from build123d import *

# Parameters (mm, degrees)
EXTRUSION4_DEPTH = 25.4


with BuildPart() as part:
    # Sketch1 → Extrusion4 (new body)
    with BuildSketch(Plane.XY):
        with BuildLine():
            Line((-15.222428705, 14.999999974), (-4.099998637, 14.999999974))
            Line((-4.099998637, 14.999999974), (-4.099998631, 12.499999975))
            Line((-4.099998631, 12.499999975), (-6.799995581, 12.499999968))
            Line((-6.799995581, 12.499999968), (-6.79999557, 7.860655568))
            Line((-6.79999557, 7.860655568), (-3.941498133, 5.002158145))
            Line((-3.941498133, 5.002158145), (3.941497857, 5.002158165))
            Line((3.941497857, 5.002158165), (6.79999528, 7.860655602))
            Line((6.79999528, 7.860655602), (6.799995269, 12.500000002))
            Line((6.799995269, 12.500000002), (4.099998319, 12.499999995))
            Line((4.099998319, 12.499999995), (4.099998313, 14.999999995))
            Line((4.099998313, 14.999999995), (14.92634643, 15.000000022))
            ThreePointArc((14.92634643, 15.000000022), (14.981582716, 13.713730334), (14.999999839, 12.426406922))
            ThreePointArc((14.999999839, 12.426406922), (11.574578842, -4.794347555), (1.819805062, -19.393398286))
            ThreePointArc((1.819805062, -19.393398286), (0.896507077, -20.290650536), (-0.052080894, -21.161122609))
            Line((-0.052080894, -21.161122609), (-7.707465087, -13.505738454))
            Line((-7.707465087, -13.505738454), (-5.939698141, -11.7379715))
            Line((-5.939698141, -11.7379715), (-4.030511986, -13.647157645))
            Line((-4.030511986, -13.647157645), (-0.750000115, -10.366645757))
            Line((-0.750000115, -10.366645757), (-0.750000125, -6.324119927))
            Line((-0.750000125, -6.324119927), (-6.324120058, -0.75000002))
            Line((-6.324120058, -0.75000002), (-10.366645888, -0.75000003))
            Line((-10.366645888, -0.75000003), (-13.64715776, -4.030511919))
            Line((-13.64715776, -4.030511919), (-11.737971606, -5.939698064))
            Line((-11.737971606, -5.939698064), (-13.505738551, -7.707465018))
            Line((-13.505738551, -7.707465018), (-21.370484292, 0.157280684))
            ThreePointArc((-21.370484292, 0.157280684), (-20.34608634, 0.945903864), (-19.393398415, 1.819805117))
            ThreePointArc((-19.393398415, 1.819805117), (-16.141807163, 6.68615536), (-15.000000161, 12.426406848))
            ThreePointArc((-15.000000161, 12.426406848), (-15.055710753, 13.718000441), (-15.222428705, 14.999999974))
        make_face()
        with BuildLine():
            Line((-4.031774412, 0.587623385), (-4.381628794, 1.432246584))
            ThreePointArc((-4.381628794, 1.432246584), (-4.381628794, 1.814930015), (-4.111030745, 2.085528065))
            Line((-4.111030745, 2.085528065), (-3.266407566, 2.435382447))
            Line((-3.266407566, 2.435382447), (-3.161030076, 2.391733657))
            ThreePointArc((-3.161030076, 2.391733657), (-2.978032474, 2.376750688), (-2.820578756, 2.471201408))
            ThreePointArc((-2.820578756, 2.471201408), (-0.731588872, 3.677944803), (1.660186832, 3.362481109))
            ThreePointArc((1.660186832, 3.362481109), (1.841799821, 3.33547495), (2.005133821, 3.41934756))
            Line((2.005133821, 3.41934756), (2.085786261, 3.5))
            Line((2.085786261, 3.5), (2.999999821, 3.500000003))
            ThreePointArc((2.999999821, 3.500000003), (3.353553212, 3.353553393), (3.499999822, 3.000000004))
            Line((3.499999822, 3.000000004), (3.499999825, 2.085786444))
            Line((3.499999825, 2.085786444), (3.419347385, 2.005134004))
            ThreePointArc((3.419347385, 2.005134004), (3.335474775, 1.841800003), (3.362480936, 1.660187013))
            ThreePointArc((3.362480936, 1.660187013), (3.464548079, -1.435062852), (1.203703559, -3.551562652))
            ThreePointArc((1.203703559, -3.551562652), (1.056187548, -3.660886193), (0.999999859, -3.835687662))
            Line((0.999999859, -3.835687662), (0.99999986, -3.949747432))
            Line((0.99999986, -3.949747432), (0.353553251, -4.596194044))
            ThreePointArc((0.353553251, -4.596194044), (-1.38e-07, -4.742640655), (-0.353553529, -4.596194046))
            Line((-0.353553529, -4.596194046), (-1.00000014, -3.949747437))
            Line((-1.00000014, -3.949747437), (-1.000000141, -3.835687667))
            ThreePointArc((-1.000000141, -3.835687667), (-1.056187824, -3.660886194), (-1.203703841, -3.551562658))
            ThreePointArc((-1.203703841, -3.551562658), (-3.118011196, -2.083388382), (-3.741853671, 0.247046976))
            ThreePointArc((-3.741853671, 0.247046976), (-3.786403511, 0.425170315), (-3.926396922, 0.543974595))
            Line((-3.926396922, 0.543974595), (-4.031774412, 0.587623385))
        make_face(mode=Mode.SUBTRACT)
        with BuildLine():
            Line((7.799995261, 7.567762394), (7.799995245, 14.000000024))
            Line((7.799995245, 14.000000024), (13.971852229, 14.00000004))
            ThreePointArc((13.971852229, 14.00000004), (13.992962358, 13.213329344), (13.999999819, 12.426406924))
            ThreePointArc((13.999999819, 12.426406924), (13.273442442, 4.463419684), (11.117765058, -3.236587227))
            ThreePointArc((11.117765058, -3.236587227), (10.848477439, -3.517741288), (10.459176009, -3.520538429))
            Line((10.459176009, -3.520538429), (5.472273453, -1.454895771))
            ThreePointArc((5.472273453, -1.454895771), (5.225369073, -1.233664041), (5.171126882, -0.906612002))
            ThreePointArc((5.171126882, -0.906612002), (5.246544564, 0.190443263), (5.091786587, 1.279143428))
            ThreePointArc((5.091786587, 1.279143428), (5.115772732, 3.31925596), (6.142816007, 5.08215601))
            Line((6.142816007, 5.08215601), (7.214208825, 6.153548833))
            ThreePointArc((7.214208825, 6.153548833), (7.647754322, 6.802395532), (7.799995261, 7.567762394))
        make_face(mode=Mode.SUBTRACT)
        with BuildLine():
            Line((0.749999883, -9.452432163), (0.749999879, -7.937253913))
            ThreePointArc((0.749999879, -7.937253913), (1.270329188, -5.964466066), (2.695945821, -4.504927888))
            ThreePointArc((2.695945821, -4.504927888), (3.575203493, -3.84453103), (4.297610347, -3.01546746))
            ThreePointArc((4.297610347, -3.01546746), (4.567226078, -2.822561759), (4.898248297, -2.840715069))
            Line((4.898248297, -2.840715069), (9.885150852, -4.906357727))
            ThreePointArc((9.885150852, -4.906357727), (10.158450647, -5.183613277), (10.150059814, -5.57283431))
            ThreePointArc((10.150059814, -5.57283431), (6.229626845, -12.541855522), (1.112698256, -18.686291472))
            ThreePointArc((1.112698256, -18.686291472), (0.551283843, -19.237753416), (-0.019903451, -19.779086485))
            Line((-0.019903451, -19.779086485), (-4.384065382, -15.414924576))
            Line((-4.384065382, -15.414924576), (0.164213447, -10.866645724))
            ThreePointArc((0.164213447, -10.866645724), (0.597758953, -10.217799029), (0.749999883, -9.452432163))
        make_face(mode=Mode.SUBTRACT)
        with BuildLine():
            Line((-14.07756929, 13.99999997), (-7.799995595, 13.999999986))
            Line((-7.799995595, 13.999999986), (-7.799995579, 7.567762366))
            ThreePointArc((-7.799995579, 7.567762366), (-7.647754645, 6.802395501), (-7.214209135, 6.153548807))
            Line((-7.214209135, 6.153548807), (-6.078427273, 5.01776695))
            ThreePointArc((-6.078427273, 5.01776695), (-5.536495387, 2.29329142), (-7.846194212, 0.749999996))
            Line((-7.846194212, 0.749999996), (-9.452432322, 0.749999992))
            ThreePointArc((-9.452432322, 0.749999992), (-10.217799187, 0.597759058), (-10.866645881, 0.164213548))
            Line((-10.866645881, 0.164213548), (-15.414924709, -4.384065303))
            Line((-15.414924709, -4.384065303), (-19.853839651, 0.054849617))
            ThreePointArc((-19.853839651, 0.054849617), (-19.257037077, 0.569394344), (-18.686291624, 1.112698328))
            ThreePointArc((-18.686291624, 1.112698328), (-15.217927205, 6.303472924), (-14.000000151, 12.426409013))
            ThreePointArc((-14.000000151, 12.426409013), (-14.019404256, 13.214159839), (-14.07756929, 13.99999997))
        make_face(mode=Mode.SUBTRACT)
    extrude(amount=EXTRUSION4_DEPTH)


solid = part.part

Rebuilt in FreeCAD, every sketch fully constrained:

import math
import FreeCAD as App
import Part
import Sketcher
from FreeCAD import Vector
Q = App.Units.Quantity

doc = App.newDocument("Part")
params = doc.addObject("Spreadsheet::Sheet", "Params")
for row, (alias, value) in enumerate([
    ("sketch1_radius", "14.999999 mm"),
    ("sketch1_radius2", "44.999999 mm"),
    ("sketch1_radius3", "4 mm"),
    ("sketch1_radius4", "44 mm"),
    ("sketch1_radius5", "2 mm"),
    ("pad1_length", "25.4 mm"),
], start=1):
    params.set(f"A{row}", alias)
    params.set(f"B{row}", "=" + value)
    params.setAlias(f"B{row}", alias)

body = doc.addObject("PartDesign::Body", "Body")

sketch1 = body.newObject("Sketcher::SketchObject", "Sketch")
sketch1.AttachmentSupport = (doc.getObject("XY_Plane"), [""])
sketch1.MapMode = "FlatFace"
sketch1.addGeometry([
    Part.LineSegment(Vector(-4.099999, 15, 0), Vector(-15.222429, 15, 0)),
    Part.ArcOfCircle(Part.Circle(Vector(-30, 12.426407, 0), Vector(0, 0, 1), 14.999999), math.radians(0), math.radians(9.879282)),
    Part.ArcOfCircle(Part.Circle(Vector(-30, 12.426407, 0), Vector(0, 0, 1), 15), math.radians(-45), math.radians(0)),
    Part.ArcOfCircle(Part.Circle(Vector(-30.000001, 12.426407, 0), Vector(0, 0, 1), 15.000001), math.radians(-54.879282), math.radians(-45)),
    Part.LineSegment(Vector(-21.370484, 0.157281, 0), Vector(-13.505739, -7.707465, 0)),
    Part.LineSegment(Vector(-13.505739, -7.707465, 0), Vector(-11.737972, -5.939698, 0)),
    Part.LineSegment(Vector(-11.737972, -5.939698, 0), Vector(-13.647158, -4.030512, 0)),
    Part.LineSegment(Vector(-13.647158, -4.030512, 0), Vector(-10.366646, -0.75, 0)),
    Part.LineSegment(Vector(-10.366646, -0.75, 0), Vector(-6.32412, -0.75, 0)),
    Part.LineSegment(Vector(-6.32412, -0.75, 0), Vector(-0.75, -6.32412, 0)),
    Part.LineSegment(Vector(-0.75, -6.32412, 0), Vector(-0.75, -10.366646, 0)),
    Part.LineSegment(Vector(-0.75, -10.366646, 0), Vector(-4.030512, -13.647158, 0)),
    Part.LineSegment(Vector(-4.030512, -13.647158, 0), Vector(-5.939698, -11.737972, 0)),
    Part.LineSegment(Vector(-5.939698, -11.737972, 0), Vector(-7.707465, -13.505738, 0)),
    Part.LineSegment(Vector(-7.707465, -13.505738, 0), Vector(-0.052081, -21.161123, 0)),
    Part.ArcOfCircle(Part.Circle(Vector(-29.999999, 12.426406, 0), Vector(0, 0, 1), 44.999999), math.radians(-48.278589), math.radians(-45)),
    Part.ArcOfCircle(Part.Circle(Vector(-30, 12.426407, 0), Vector(0, 0, 1), 45), math.radians(-45), math.radians(0)),
    Part.ArcOfCircle(Part.Circle(Vector(-30.000001, 12.426407, 0), Vector(0, 0, 1), 45.000001), math.radians(0), math.radians(3.27859)),
    Part.LineSegment(Vector(14.926346, 15, 0), Vector(4.099998, 15, 0)),
    Part.LineSegment(Vector(4.099998, 15, 0), Vector(4.099998, 12.5, 0)),
    Part.LineSegment(Vector(4.099998, 12.5, 0), Vector(6.799995, 12.5, 0)),
    Part.LineSegment(Vector(6.799995, 12.5, 0), Vector(6.799995, 7.860656, 0)),
    Part.LineSegment(Vector(6.799995, 7.860656, 0), Vector(3.941498, 5.002158, 0)),
    Part.LineSegment(Vector(3.941498, 5.002158, 0), Vector(-3.941498, 5.002158, 0)),
    Part.LineSegment(Vector(-3.941498, 5.002158, 0), Vector(-6.799996, 7.860656, 0)),
    Part.LineSegment(Vector(-6.799996, 7.860656, 0), Vector(-6.799996, 12.5, 0)),
    Part.LineSegment(Vector(-6.799996, 12.5, 0), Vector(-4.099999, 12.5, 0)),
    Part.LineSegment(Vector(-4.099999, 12.5, 0), Vector(-4.099999, 15, 0)),
    Part.LineSegment(Vector(0.75, -9.452432, 0), Vector(0.75, -7.937254, 0)),
    Part.ArcOfCircle(Part.Circle(Vector(4.75, -7.937254, 0), Vector(0, 0, 1), 4), math.radians(120.898148), math.radians(180)),
    Part.ArcOfCircle(Part.Circle(Vector(0, 0, 0), Vector(0, 0, 1), 5.25), math.radians(-59.101851), math.radians(-35.055858)),
    Part.ArcOfCircle(Part.Circle(Vector(4.706907, -3.302655, 0), Vector(0, 0, 1), 0.5), math.radians(67.499998), math.radians(144.944145)),
    Part.LineSegment(Vector(4.898248, -2.840715, 0), Vector(9.885151, -4.906358, 0)),
    Part.ArcOfCircle(Part.Circle(Vector(9.693809, -5.368297, 0), Vector(0, 0, 1), 0.5), math.radians(-24.146656), math.radians(67.499999)),
    Part.ArcOfCircle(Part.Circle(Vector(-30, 12.426407, 0), Vector(0, 0, 1), 44), math.radians(-45), math.radians(-24.146657)),
    Part.ArcOfCircle(Part.Circle(Vector(-30.000002, 12.426409, 0), Vector(0, 0, 1), 44.000002), math.radians(-47.049533), math.radians(-45)),
    Part.LineSegment(Vector(-0.019903, -19.779086, 0), Vector(-4.384065, -15.414925, 0)),
    Part.LineSegment(Vector(-4.384065, -15.414925, 0), Vector(0.164213, -10.866646, 0)),
    Part.ArcOfCircle(Part.Circle(Vector(-1.25, -9.452432, 0), Vector(0, 0, 1), 2), math.radians(-45.000001), math.radians(0.000001)),
    Part.LineSegment(Vector(7.799995, 7.567762, 0), Vector(7.799995, 14, 0)),
    Part.LineSegment(Vector(7.799995, 14, 0), Vector(13.971852, 14, 0)),
    Part.ArcOfCircle(Part.Circle(Vector(-29.999999, 12.426407, 0), Vector(0, 0, 1), 43.999998), math.radians(0), math.radians(2.049534)),
    Part.ArcOfCircle(Part.Circle(Vector(-30, 12.426407, 0), Vector(0, 0, 1), 44), math.radians(-20.853343), math.radians(0)),
    Part.ArcOfCircle(Part.Circle(Vector(10.650518, -3.058599, 0), Vector(0, 0, 1), 0.5), math.radians(-112.5), math.radians(-20.853342)),
    Part.LineSegment(Vector(10.459176, -3.520538, 0), Vector(5.472273, -1.454896, 0)),
    Part.ArcOfCircle(Part.Circle(Vector(5.663615, -0.992956, 0), Vector(0, 0, 1), 0.5), math.radians(170.055858), math.radians(247.5)),
    Part.ArcOfCircle(Part.Circle(Vector(0, 0, 0), Vector(0, 0, 1), 5.25), math.radians(-9.944142), math.radians(14.101852)),
    Part.ArcOfCircle(Part.Circle(Vector(8.971243, 2.253729, 0), Vector(0, 0, 1), 4), math.radians(135), math.radians(194.101852)),
    Part.LineSegment(Vector(6.142816, 5.082156, 0), Vector(7.214209, 6.153549, 0)),
    Part.ArcOfCircle(Part.Circle(Vector(5.799995, 7.567762, 0), Vector(0, 0, 1), 2), math.radians(-44.999999), math.radians(-0.000001)),
    Part.LineSegment(Vector(-4.031774, 0.587623, 0), Vector(-4.381629, 1.432247, 0)),
    Part.ArcOfCircle(Part.Circle(Vector(-3.919689, 1.623588, 0), Vector(0, 0, 1), 0.5), math.radians(112.5), math.radians(202.5)),
    Part.LineSegment(Vector(-4.111031, 2.085528, 0), Vector(-3.266408, 2.435382, 0)),
    Part.LineSegment(Vector(-3.266408, 2.435382, 0), Vector(-3.16103, 2.391734, 0)),
    Part.ArcOfCircle(Part.Circle(Vector(-3.046225, 2.668898, 0), Vector(0, 0, 1), 0.3), math.radians(-112.499997), math.radians(-41.222667)),
    Part.ArcOfCircle(Part.Circle(Vector(0, 0, 0), Vector(0, 0, 1), 3.75), math.radians(63.722665), math.radians(138.777335)),
    Part.ArcOfCircle(Part.Circle(Vector(1.793002, 3.63148, 0), Vector(0, 0, 1), 0.3), math.radians(-116.277334), math.radians(-45.000002)),
    Part.LineSegment(Vector(2.005134, 3.419348, 0), Vector(2.085786, 3.5, 0)),
    Part.LineSegment(Vector(2.085786, 3.5, 0), Vector(3, 3.5, 0)),
    Part.ArcOfCircle(Part.Circle(Vector(3, 3, 0), Vector(0, 0, 1), 0.5), math.radians(0), math.radians(90)),
    Part.LineSegment(Vector(3.5, 3, 0), Vector(3.5, 2.085786, 0)),
    Part.LineSegment(Vector(3.5, 2.085786, 0), Vector(3.419347, 2.005134, 0)),
    Part.ArcOfCircle(Part.Circle(Vector(3.631479, 1.793002, 0), Vector(0, 0, 1), 0.3), math.radians(135.000001), math.radians(206.277335)),
    Part.ArcOfCircle(Part.Circle(Vector(0, 0, 0), Vector(0, 0, 1), 3.75), math.radians(-71.277335), math.radians(26.277335)),
    Part.ArcOfCircle(Part.Circle(Vector(1.3, -3.835688, 0), Vector(0, 0, 1), 0.3), math.radians(108.722668), math.radians(179.999997)),
    Part.LineSegment(Vector(1, -3.835688, 0), Vector(1, -3.949747, 0)),
    Part.LineSegment(Vector(1, -3.949747, 0), Vector(0.353553, -4.596194, 0)),
    Part.ArcOfCircle(Part.Circle(Vector(0, -4.242641, 0), Vector(0, 0, 1), 0.5), math.radians(-135), math.radians(-45)),
    Part.LineSegment(Vector(-0.353554, -4.596194, 0), Vector(-1, -3.949747, 0)),
    Part.LineSegment(Vector(-1, -3.949747, 0), Vector(-1, -3.835688, 0)),
    Part.ArcOfCircle(Part.Circle(Vector(-1.3, -3.835688, 0), Vector(0, 0, 1), 0.3), math.radians(-0.000001), math.radians(71.277337)),
    Part.ArcOfCircle(Part.Circle(Vector(0, 0, 0), Vector(0, 0, 1), 3.75), math.radians(176.222664), math.radians(251.277336)),
    Part.ArcOfCircle(Part.Circle(Vector(-4.041202, 0.266811, 0), Vector(0, 0, 1), 0.3), math.radians(-3.777338), math.radians(67.500002)),
    Part.LineSegment(Vector(-3.926397, 0.543975, 0), Vector(-4.031774, 0.587623, 0)),
    Part.LineSegment(Vector(-14.077569, 14, 0), Vector(-7.799996, 14, 0)),
    Part.LineSegment(Vector(-7.799996, 14, 0), Vector(-7.799996, 7.567762, 0)),
    Part.ArcOfCircle(Part.Circle(Vector(-5.799996, 7.567762, 0), Vector(0, 0, 1), 2), math.radians(180), math.radians(225.000001)),
    Part.LineSegment(Vector(-7.214209, 6.153549, 0), Vector(-6.078427, 5.017767, 0)),
    Part.ArcOfCircle(Part.Circle(Vector(-7.846194, 3.25, 0), Vector(0, 0, 1), 2.5), math.radians(-90), math.radians(45)),
    Part.LineSegment(Vector(-7.846194, 0.75, 0), Vector(-9.452432, 0.75, 0)),
    Part.ArcOfCircle(Part.Circle(Vector(-9.452432, -1.25, 0), Vector(0, 0, 1), 2), math.radians(90), math.radians(135.000001)),
    Part.LineSegment(Vector(-10.866646, 0.164214, 0), Vector(-15.414925, -4.384065, 0)),
    Part.LineSegment(Vector(-15.414925, -4.384065, 0), Vector(-19.85384, 0.05485, 0)),
    Part.ArcOfCircle(Part.Circle(Vector(-30.000001, 12.426407, 0), Vector(0, 0, 1), 16.000001), math.radians(-50.644139), math.radians(-45)),
    Part.ArcOfCircle(Part.Circle(Vector(-30, 12.426407, 0), Vector(0, 0, 1), 16), math.radians(-45), math.radians(0.000008)),
    Part.ArcOfCircle(Part.Circle(Vector(-30, 12.426407, 0), Vector(0, 0, 1), 16), math.radians(0.000008), math.radians(5.64414)),
], False)
sketch1.addConstraint([
    Sketcher.Constraint("Coincident", 0, 2, 1, 2),
    Sketcher.Constraint("Tangent", 1, 1, 2, 2),
    Sketcher.Constraint("Tangent", 2, 1, 3, 2),
    Sketcher.Constraint("Coincident", 3, 1, 4, 1),
    Sketcher.Constraint("Coincident", 4, 2, 5, 1),
    Sketcher.Constraint("Coincident", 5, 2, 6, 1),
    Sketcher.Constraint("Coincident", 6, 2, 7, 1),
    Sketcher.Constraint("Coincident", 7, 2, 8, 1),
    Sketcher.Constraint("Coincident", 8, 2, 9, 1),
    Sketcher.Constraint("Coincident", 9, 2, 10, 1),
    Sketcher.Constraint("Coincident", 10, 2, 11, 1),
    Sketcher.Constraint("Coincident", 11, 2, 12, 1),
    Sketcher.Constraint("Coincident", 12, 2, 13, 1),
    Sketcher.Constraint("Coincident", 13, 2, 14, 1),
    Sketcher.Constraint("Coincident", 14, 2, 15, 1),
    Sketcher.Constraint("Tangent", 15, 2, 16, 1),
    Sketcher.Constraint("Tangent", 16, 2, 17, 1),
    Sketcher.Constraint("Coincident", 17, 2, 18, 1),
    Sketcher.Constraint("Coincident", 18, 2, 19, 1),
    Sketcher.Constraint("Coincident", 19, 2, 20, 1),
    Sketcher.Constraint("Coincident", 20, 2, 21, 1),
    Sketcher.Constraint("Coincident", 21, 2, 22, 1),
    Sketcher.Constraint("Coincident", 22, 2, 23, 1),
    Sketcher.Constraint("Coincident", 23, 2, 24, 1),
    Sketcher.Constraint("Coincident", 24, 2, 25, 1),
    Sketcher.Constraint("Coincident", 25, 2, 26, 1),
    Sketcher.Constraint("Coincident", 26, 2, 27, 1),
    Sketcher.Constraint("Coincident", 27, 2, 0, 1),
    Sketcher.Constraint("Tangent", 28, 2, 29, 2),
    Sketcher.Constraint("Tangent", 29, 1, 30, 1),
    Sketcher.Constraint("Tangent", 30, 2, 31, 2),
    Sketcher.Constraint("Tangent", 31, 1, 32, 1),
    Sketcher.Constraint("Tangent", 32, 2, 33, 2),
    Sketcher.Constraint("Tangent", 33, 1, 34, 2),
    Sketcher.Constraint("Tangent", 34, 1, 35, 2),
    Sketcher.Constraint("Coincident", 35, 1, 36, 1),
    Sketcher.Constraint("Coincident", 36, 2, 37, 1),
    Sketcher.Constraint("Tangent", 37, 2, 38, 1),
    Sketcher.Constraint("Tangent", 38, 2, 28, 1),
    Sketcher.Constraint("Coincident", 39, 2, 40, 1),
    Sketcher.Constraint("Coincident", 40, 2, 41, 2),
    Sketcher.Constraint("Tangent", 41, 1, 42, 2),
    Sketcher.Constraint("Tangent", 42, 1, 43, 2),
    Sketcher.Constraint("Tangent", 43, 1, 44, 1),
    Sketcher.Constraint("Tangent", 44, 2, 45, 2),
    Sketcher.Constraint("Tangent", 45, 1, 46, 1),
    Sketcher.Constraint("Tangent", 46, 2, 47, 2),
    Sketcher.Constraint("Tangent", 47, 1, 48, 1),
    Sketcher.Constraint("Tangent", 48, 2, 49, 1),
    Sketcher.Constraint("Tangent", 49, 2, 39, 1),
    Sketcher.Constraint("Tangent", 50, 2, 51, 2),
    Sketcher.Constraint("Tangent", 51, 1, 52, 1),
    Sketcher.Constraint("Coincident", 52, 2, 53, 1),
    Sketcher.Constraint("Tangent", 53, 2, 54, 1),
    Sketcher.Constraint("Tangent", 54, 2, 55, 2),
    Sketcher.Constraint("Tangent", 55, 1, 56, 1),
    Sketcher.Constraint("Tangent", 56, 2, 57, 1),
    Sketcher.Constraint("Coincident", 57, 2, 58, 1),
    Sketcher.Constraint("Tangent", 58, 2, 59, 2),
    Sketcher.Constraint("Tangent", 59, 1, 60, 1),
    Sketcher.Constraint("Coincident", 60, 2, 61, 1),
    Sketcher.Constraint("Tangent", 61, 2, 62, 1),
    Sketcher.Constraint("Tangent", 62, 2, 63, 2),
    Sketcher.Constraint("Tangent", 63, 1, 64, 1),
    Sketcher.Constraint("Tangent", 64, 2, 65, 1),
    Sketcher.Constraint("Coincident", 65, 2, 66, 1),
    Sketcher.Constraint("Tangent", 66, 2, 67, 2),
    Sketcher.Constraint("Tangent", 67, 1, 68, 1),
    Sketcher.Constraint("Coincident", 68, 2, 69, 1),
    Sketcher.Constraint("Tangent", 69, 2, 70, 1),
    Sketcher.Constraint("Tangent", 70, 2, 71, 2),
    Sketcher.Constraint("Tangent", 71, 1, 72, 1),
    Sketcher.Constraint("Tangent", 72, 2, 73, 1),
    Sketcher.Constraint("Coincident", 73, 2, 50, 1),
    Sketcher.Constraint("Coincident", 74, 2, 75, 1),
    Sketcher.Constraint("Tangent", 75, 2, 76, 1),
    Sketcher.Constraint("Tangent", 76, 2, 77, 1),
    Sketcher.Constraint("Tangent", 77, 2, 78, 2),
    Sketcher.Constraint("Tangent", 78, 1, 79, 1),
    Sketcher.Constraint("Tangent", 79, 2, 80, 1),
    Sketcher.Constraint("Tangent", 80, 2, 81, 1),
    Sketcher.Constraint("Coincident", 81, 2, 82, 1),
    Sketcher.Constraint("Coincident", 82, 2, 83, 1),
    Sketcher.Constraint("Tangent", 83, 2, 84, 1),
    Sketcher.Constraint("Tangent", 84, 2, 85, 1),
    Sketcher.Constraint("Coincident", 85, 2, 74, 1),
    Sketcher.Constraint("Horizontal", 0),
    Sketcher.Constraint("Horizontal", 8),
    Sketcher.Constraint("Vertical", 10),
    Sketcher.Constraint("Horizontal", 18),
    Sketcher.Constraint("Vertical", 19),
    Sketcher.Constraint("Horizontal", 20),
    Sketcher.Constraint("Vertical", 21),
    Sketcher.Constraint("Horizontal", 23),
    Sketcher.Constraint("Vertical", 25),
    Sketcher.Constraint("Horizontal", 26),
    Sketcher.Constraint("Vertical", 27),
    Sketcher.Constraint("Vertical", 28),
    Sketcher.Constraint("Vertical", 39),
    Sketcher.Constraint("Horizontal", 40),
    Sketcher.Constraint("Horizontal", 58),
    Sketcher.Constraint("Vertical", 60),
    Sketcher.Constraint("Vertical", 65),
    Sketcher.Constraint("Vertical", 69),
    Sketcher.Constraint("Horizontal", 74),
    Sketcher.Constraint("Vertical", 75),
    Sketcher.Constraint("Horizontal", 79),
    Sketcher.Constraint("Coincident", 30, 3, -1, 1),
    Sketcher.Constraint("Coincident", 46, 3, -1, 1),
    Sketcher.Constraint("Coincident", 55, 3, -1, 1),
    Sketcher.Constraint("Coincident", 63, 3, -1, 1),
    Sketcher.Constraint("Coincident", 71, 3, -1, 1),
    Sketcher.Constraint("Coincident", 3, 3, 1, 3),
    Sketcher.Constraint("Coincident", 15, 3, 1, 3),
    Sketcher.Constraint("Coincident", 17, 3, 1, 3),
    Sketcher.Constraint("Coincident", 34, 3, 1, 3),
    Sketcher.Constraint("Coincident", 41, 3, 1, 3),
    Sketcher.Constraint("Coincident", 83, 3, 1, 3),
    Sketcher.Constraint("Coincident", 85, 3, 1, 3),
    Sketcher.Constraint("Equal", 31, 33),
    Sketcher.Constraint("Equal", 34, 41),
    Sketcher.Constraint("Equal", 41, 42),
    Sketcher.Constraint("Equal", 33, 43),
    Sketcher.Constraint("Equal", 43, 45),
    Sketcher.Constraint("Equal", 30, 46),
    Sketcher.Constraint("Equal", 29, 47),
    Sketcher.Constraint("Equal", 38, 49),
    Sketcher.Constraint("Equal", 45, 51),
    Sketcher.Constraint("Equal", 54, 56),
    Sketcher.Constraint("Equal", 51, 59),
    Sketcher.Constraint("Equal", 56, 62),
    Sketcher.Constraint("Equal", 55, 63),
    Sketcher.Constraint("Equal", 62, 64),
    Sketcher.Constraint("Equal", 59, 67),
    Sketcher.Constraint("Equal", 64, 70),
    Sketcher.Constraint("Equal", 63, 71),
    Sketcher.Constraint("Equal", 70, 72),
    Sketcher.Constraint("Equal", 49, 76),
    Sketcher.Constraint("Equal", 76, 80),
    Sketcher.Constraint("Symmetric", 49, 3, 76, 3, -2),
    Sketcher.Constraint("Symmetric", 1, 1, 16, 2, -2),
    Sketcher.Constraint("Symmetric", 21, 2, 24, 2, -2),
    Sketcher.Constraint("Symmetric", 19, 2, 26, 2, -2),
    Sketcher.Constraint("Symmetric", 66, 2, 67, 1, -2),
    Sketcher.Constraint("Symmetric", 41, 1, 84, 2, -2),
    Sketcher.Constraint("Perpendicular", 4, 5),
    Sketcher.Constraint("Perpendicular", 5, 6),
    Sketcher.Constraint("Perpendicular", 6, 7),
    Sketcher.Constraint("Perpendicular", 7, 9),
    Sketcher.Constraint("Perpendicular", 9, 11),
    Sketcher.Constraint("Perpendicular", 11, 12),
    Sketcher.Constraint("Perpendicular", 12, 13),
    Sketcher.Constraint("Perpendicular", 13, 14),
    Sketcher.Constraint("Perpendicular", 14, 22),
    Sketcher.Constraint("Perpendicular", 22, 24),
    Sketcher.Constraint("Parallel", 24, 36),
    Sketcher.Constraint("Perpendicular", 36, 37),
    Sketcher.Constraint("Parallel", 32, 44),
    Sketcher.Constraint("Parallel", 37, 48),
    Sketcher.Constraint("Perpendicular", 50, 52),
    Sketcher.Constraint("Parallel", 44, 53),
    Sketcher.Constraint("Parallel", 48, 57),
    Sketcher.Constraint("Parallel", 57, 61),
    Sketcher.Constraint("Parallel", 61, 66),
    Sketcher.Constraint("Perpendicular", 66, 68),
    Sketcher.Constraint("Parallel", 53, 73),
    Sketcher.Constraint("Parallel", 68, 77),
    Sketcher.Constraint("Perpendicular", 77, 81),
    Sketcher.Constraint("Perpendicular", 81, 82),
    Sketcher.Constraint("Horizontal", 64, 3, 70, 3),
    Sketcher.Constraint("Horizontal", 85, 3, 1, 1),
    Sketcher.Constraint("Horizontal", 0, 2, 17, 2),
    Sketcher.Constraint("Horizontal", 16, 2, 41, 1),
    Sketcher.Constraint("Horizontal", 40, 2, 74, 2),
    Sketcher.Constraint("Equal", 8, 10),
    Sketcher.Constraint("Equal", 58, 60),
    Sketcher.Constraint("Equal", 7, 11),
    Sketcher.Constraint("Equal", 6, 12),
    Sketcher.Constraint("Equal", 5, 13),
    Sketcher.Constraint("Equal", 32, 44),
    Sketcher.Constraint("Equal", 50, 52),
    Sketcher.Constraint("Equal", 53, 57),
    Sketcher.Constraint("Equal", 57, 61),
    Sketcher.Constraint("Equal", 52, 66),
    Sketcher.Constraint("Equal", 61, 73),
    Sketcher.Constraint("Equal", 37, 81),
    Sketcher.Constraint("Radius", 1, 14.999999),
    Sketcher.Constraint("Radius", 15, 44.999999),
    Sketcher.Constraint("Radius", 29, 4.0),
    Sketcher.Constraint("Radius", 34, 44.0),
    Sketcher.Constraint("Radius", 38, 2.0),
    Sketcher.Constraint("Radius", 31, 0.5),
    Sketcher.Constraint("Radius", 54, 0.3),
    Sketcher.Constraint("Radius", 78, 2.5),
    Sketcher.Constraint("Radius", 30, 5.25),
    Sketcher.Constraint("Radius", 55, 3.75),
    Sketcher.Constraint("DistanceY", 19, 2, 19, 1, 2.5),
    Sketcher.Constraint("DistanceX", 35, 3, -1, 1, 30.000002),
    Sketcher.Constraint("DistanceX", -1, 1, 59, 3, 3.0),
    Sketcher.Constraint("DistanceY", -1, 1, 0, 2, 15.0),
    Sketcher.Constraint("DistanceY", -1, 1, 39, 2, 14.0),
    Sketcher.Constraint("DistanceX", -1, 1, 64, 2, 1.0),
    Sketcher.Constraint("Angle", 32, Q("-22.5 deg")),
    Sketcher.Constraint("Angle", 50, Q("112.5 deg")),
    Sketcher.Constraint("Distance", 5, 2.5),
    Sketcher.Constraint("DistanceX", -1, 1, 18, 2, 4.099998),
    Sketcher.Constraint("DistanceX", -1, 1, 29, 3, 4.75),
    Sketcher.Constraint("DistanceY", -1, 1, 78, 3, 3.25),
    Sketcher.Constraint("DistanceY", 7, 2, -1, 1, 0.75),
    Sketcher.Constraint("DistanceX", 9, 2, -1, 1, 0.75),
    Sketcher.Constraint("DistanceX", -1, 1, 56, 3, 1.793002),
    Sketcher.Constraint("DistanceX", 0, 2, 0, 1, 11.12243),
    Sketcher.Constraint("DistanceX", 79, 2, 79, 1, 1.606238),
    Sketcher.Constraint("DistanceY", 28, 1, 28, 2, 1.515178),
    Sketcher.Constraint("DistanceY", 65, 2, 65, 1, 0.11406),
    Sketcher.Constraint("DistanceY", 43, 3, -1, 1, 3.058599),
    Sketcher.Constraint("DistanceX", 2, 1, -1, 1, 19.393398),
    Sketcher.Constraint("DistanceY", 5, 2, -1, 1, 5.939698),
    Sketcher.Constraint("DistanceY", 15, 2, -1, 1, 19.393398),
    Sketcher.Constraint("DistanceX", 23, 2, -1, 1, 3.941498),
    Sketcher.Constraint("DistanceX", -1, 1, 34, 1, 1.112698),
    Sketcher.Constraint("DistanceY", -1, 1, 83, 2, 1.112698),
    Sketcher.Constraint("Distance", 4, 11.12243),
    Sketcher.Constraint("Distance", 48, 1.515178),
    Sketcher.Constraint("Distance", 77, 1.606238),
    Sketcher.Constraint("DistanceX", 8, 1, 8, 2, 4.042526),
    Sketcher.Constraint("DistanceX", 20, 1, 20, 2, 2.699997),
    Sketcher.Constraint("DistanceY", 21, 2, 21, 1, 4.639344),
    Sketcher.Constraint("DistanceY", 6, 2, -1, 1, 4.030512),
    Sketcher.Constraint("DistanceX", 82, 2, -1, 1, 19.85384),
])
sketch1.setExpression("Constraints[186]", "Params.sketch1_radius")
sketch1.setExpression("Constraints[187]", "Params.sketch1_radius2")
sketch1.setExpression("Constraints[188]", "Params.sketch1_radius3")
sketch1.setExpression("Constraints[189]", "Params.sketch1_radius4")
sketch1.setExpression("Constraints[190]", "Params.sketch1_radius5")
pad1 = body.newObject("PartDesign::Pad", "Pad")
pad1.Profile = sketch1
pad1.setExpression("Length", "Params.pad1_length")

doc.recompute()
